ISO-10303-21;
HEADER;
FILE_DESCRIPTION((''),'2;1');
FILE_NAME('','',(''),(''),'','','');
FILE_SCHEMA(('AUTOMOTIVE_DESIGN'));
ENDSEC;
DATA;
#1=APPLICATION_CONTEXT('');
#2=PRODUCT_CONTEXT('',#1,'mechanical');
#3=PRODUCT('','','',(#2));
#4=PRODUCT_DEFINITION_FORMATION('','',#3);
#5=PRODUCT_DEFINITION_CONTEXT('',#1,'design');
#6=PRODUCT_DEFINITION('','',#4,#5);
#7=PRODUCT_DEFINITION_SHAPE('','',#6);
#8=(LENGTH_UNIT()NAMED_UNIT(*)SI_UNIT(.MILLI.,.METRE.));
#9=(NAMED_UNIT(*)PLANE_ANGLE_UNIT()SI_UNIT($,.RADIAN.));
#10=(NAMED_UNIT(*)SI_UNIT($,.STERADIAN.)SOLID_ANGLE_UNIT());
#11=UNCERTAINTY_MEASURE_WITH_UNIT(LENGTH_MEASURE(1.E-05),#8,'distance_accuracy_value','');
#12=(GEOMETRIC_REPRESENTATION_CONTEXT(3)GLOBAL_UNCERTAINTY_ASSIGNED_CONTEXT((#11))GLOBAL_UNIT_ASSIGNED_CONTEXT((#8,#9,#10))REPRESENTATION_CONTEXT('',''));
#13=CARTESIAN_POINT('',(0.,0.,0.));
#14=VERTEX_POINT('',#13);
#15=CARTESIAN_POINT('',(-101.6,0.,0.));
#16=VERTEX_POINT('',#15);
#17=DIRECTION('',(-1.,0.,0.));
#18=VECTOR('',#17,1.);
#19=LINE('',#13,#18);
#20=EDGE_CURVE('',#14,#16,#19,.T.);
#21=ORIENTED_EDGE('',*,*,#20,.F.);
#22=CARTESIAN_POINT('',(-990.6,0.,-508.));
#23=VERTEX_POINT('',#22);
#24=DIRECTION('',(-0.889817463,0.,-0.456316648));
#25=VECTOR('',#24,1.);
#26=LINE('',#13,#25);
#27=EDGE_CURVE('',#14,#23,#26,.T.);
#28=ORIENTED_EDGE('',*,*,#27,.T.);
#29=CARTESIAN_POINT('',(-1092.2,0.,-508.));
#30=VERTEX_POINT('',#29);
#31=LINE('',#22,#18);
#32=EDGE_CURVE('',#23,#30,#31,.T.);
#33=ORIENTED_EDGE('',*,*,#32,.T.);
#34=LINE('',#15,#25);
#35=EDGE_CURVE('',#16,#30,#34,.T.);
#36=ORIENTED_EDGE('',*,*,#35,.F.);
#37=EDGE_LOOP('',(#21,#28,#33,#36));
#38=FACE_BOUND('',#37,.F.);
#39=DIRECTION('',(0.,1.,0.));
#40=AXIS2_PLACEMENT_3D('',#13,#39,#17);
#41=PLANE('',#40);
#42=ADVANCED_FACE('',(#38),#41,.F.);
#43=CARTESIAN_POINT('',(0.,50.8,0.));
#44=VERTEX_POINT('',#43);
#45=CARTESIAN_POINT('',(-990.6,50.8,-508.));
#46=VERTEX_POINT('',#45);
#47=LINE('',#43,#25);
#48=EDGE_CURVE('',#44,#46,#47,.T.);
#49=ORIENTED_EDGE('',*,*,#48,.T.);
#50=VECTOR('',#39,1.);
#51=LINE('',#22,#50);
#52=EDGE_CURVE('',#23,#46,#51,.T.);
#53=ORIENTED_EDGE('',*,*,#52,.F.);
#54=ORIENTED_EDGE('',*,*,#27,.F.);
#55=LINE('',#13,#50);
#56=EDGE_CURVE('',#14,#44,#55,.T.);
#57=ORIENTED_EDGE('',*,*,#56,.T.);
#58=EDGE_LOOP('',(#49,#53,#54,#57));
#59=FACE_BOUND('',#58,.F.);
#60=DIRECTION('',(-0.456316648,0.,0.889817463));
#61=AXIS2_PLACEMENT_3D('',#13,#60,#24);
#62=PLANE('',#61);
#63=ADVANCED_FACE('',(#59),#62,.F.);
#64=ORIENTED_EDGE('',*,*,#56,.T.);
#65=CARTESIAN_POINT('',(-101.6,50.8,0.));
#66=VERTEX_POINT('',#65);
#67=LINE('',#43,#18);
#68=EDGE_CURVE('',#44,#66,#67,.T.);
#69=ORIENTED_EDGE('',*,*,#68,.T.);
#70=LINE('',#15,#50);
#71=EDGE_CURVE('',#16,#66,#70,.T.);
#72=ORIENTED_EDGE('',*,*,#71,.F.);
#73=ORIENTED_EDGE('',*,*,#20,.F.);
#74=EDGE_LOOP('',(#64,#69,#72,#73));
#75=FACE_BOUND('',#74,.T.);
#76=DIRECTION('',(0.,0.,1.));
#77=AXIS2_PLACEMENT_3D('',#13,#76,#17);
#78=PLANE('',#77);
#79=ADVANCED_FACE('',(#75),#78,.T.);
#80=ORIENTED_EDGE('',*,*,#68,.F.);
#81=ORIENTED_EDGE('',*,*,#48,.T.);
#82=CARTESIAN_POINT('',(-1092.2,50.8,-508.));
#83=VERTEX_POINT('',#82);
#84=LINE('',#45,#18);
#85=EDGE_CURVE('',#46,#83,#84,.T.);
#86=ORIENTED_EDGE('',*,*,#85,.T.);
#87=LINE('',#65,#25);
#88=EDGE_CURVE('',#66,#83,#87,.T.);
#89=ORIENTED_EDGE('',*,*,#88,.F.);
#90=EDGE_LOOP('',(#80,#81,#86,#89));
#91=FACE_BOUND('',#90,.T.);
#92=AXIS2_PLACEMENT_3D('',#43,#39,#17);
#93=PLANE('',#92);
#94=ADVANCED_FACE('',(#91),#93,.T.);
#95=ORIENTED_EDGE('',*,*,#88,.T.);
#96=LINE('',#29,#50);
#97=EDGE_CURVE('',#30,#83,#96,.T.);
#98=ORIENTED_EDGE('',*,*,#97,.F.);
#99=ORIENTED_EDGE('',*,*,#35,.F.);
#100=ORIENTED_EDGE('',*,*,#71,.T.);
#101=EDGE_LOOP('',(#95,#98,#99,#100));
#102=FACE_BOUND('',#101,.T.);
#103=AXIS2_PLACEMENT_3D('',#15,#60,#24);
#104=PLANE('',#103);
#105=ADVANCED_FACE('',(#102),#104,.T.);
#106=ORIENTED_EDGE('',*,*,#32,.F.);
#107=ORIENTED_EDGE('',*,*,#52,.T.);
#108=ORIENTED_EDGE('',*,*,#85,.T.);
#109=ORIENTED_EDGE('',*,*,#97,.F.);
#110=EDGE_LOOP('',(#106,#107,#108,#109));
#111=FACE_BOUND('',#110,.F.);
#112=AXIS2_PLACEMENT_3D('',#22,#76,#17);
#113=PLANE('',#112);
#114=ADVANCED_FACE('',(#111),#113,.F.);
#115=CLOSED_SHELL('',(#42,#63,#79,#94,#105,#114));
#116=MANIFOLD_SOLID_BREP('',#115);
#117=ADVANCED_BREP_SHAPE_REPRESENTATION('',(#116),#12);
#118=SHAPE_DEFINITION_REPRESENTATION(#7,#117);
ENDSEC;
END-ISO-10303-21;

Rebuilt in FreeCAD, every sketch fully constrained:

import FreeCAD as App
import Part
import Sketcher

V = App.Vector
Q = App.Units.Quantity

doc = App.newDocument("Part")
body = doc.addObject("PartDesign::Body", "Body")

sketch1 = doc.addObject("Sketcher::SketchObject", "Sketch")
body.addObject(sketch1)
sketch1.AttachmentSupport = (doc.XZ_Plane, [""])
sketch1.MapMode = "FlatFace"
sketch1.addGeometry(Part.LineSegment(V(-102, 0, 0), V(0, 0, 0)), False)
sketch1.addGeometry(Part.LineSegment(V(0, 0, 0), V(-991, -508, 0)), False)
sketch1.addGeometry(Part.LineSegment(V(-991, -508, 0), V(-1092, -508, 0)), False)
sketch1.addGeometry(Part.LineSegment(V(-1092, -508, 0), V(-102, 0, 0)), False)
sketch1.addConstraint(Sketcher.Constraint("Coincident", 0, 2, 1, 1))
sketch1.addConstraint(Sketcher.Constraint("Coincident", 1, 2, 2, 1))
sketch1.addConstraint(Sketcher.Constraint("Coincident", 2, 2, 3, 1))
sketch1.addConstraint(Sketcher.Constraint("Coincident", 3, 2, 0, 1))
sketch1.addConstraint(Sketcher.Constraint("Horizontal", 0))
sketch1.addConstraint(Sketcher.Constraint("Horizontal", 2))
sketch1.addConstraint(Sketcher.Constraint("Coincident", 0, 2, -1, 1))
sketch1.addConstraint(Sketcher.Constraint("Parallel", 1, 3))
sketch1.addConstraint(Sketcher.Constraint("DistanceX", 0, 1, 0, 2, Q("4 in")))
sketch1.addConstraint(Sketcher.Constraint("DistanceY", 1, 2, -1, 1, Q("20 in")))
sketch1.addConstraint(Sketcher.Constraint("DistanceX", 1, 2, -1, 1, Q("39 in")))
pad1 = doc.addObject("PartDesign::Pad", "Pad")
body.addObject(pad1)
pad1.Profile = sketch1
pad1.Length = Q("2 in")
pad1.Reversed = True

doc.recompute()
